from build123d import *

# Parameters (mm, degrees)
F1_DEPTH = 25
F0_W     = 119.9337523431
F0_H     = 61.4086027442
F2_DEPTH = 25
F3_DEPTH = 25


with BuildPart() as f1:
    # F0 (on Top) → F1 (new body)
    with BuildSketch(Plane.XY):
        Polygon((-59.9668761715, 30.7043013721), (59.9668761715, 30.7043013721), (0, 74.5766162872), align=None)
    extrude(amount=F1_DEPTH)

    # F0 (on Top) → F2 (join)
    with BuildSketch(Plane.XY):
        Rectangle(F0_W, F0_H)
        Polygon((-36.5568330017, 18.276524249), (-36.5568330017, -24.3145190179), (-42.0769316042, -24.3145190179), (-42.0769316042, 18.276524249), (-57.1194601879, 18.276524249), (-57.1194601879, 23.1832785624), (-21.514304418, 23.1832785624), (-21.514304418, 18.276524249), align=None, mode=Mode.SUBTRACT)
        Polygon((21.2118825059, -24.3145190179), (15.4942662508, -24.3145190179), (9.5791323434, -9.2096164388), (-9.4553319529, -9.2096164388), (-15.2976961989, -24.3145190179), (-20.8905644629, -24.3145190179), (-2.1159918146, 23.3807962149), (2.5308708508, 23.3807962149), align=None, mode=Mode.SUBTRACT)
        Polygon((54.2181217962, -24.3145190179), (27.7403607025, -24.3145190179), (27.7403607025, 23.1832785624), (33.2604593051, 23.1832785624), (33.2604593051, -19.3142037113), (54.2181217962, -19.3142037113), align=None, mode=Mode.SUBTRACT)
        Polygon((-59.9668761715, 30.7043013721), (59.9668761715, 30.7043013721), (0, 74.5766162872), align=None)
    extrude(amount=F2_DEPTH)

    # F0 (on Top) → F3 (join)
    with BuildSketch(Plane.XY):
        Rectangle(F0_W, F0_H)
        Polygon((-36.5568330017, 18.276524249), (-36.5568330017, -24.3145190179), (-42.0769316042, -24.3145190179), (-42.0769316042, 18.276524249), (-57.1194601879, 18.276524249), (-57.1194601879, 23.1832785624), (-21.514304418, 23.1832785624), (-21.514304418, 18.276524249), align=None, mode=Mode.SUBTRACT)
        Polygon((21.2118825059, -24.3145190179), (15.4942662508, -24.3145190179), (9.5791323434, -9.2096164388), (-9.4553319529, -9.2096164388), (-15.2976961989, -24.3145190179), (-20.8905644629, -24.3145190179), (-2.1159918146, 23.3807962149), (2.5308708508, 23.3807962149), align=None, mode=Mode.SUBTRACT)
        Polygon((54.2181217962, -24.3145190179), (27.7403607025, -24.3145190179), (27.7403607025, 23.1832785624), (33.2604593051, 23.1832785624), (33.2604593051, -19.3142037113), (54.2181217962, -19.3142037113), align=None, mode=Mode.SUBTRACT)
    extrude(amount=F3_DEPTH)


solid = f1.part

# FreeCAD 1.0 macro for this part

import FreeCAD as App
import Part
import Sketcher
from FreeCAD import Vector
Q = App.Units.Quantity


def add_polygon(sketch, points):
    """Adds a closed chain of lines whose ends are joined by coincident constraints."""
    first, n = sketch.GeometryCount, len(points)
    for a, b in zip(points, points[1:] + points[:1]):
        sketch.addGeometry(Part.LineSegment(App.Vector(*a, 0), App.Vector(*b, 0)), False)
    for i in range(n):
        sketch.addConstraint(Sketcher.Constraint("Coincident", first + i, 2, first + (i + 1) % n, 1))

doc = App.newDocument("Part")
body = doc.addObject("PartDesign::Body", "Body")

sketch1 = body.newObject("Sketcher::SketchObject", "Sketch")
sketch1.AttachmentSupport = (doc.getObject("XY_Plane"), [""])
sketch1.MapMode = "FlatFace"
add_polygon(sketch1, [(-59.966876, 30.704301), (59.966876, 30.704301), (0, 74.576616)])
sketch1.addConstraint([
    Sketcher.Constraint("Horizontal", 0),
    Sketcher.Constraint("PointOnObject", 1, 2, -2),
    Sketcher.Constraint("Equal", 1, 2),
    Sketcher.Constraint("DistanceY", -1, 1, 0, 2, Q("30.704301 mm")),
    Sketcher.Constraint("Distance", 1, Q("74.302128 mm")),
    Sketcher.Constraint("DistanceX", 0, 1, 0, 2, Q("119.933752 mm")),
])
pad1 = body.newObject("PartDesign::Pad", "Pad")
pad1.Profile = sketch1
pad1.Length = 25

sketch2 = body.newObject("Sketcher::SketchObject", "Sketch001")
sketch2.AttachmentSupport = (doc.getObject("XY_Plane"), [""])
sketch2.MapMode = "FlatFace"
add_polygon(sketch2, [(-59.966876, 30.704301), (-59.966876, -30.704301), (59.966876, -30.704301), (59.966876, 30.704301), (0, 74.576616)])
add_polygon(sketch2, [(-21.514304, 18.276524), (-36.556833, 18.276524), (-36.556833, -24.314519), (-42.076932, -24.314519), (-42.076932, 18.276524), (-57.11946, 18.276524), (-57.11946, 23.183279), (-21.514304, 23.183279)])
add_polygon(sketch2, [(54.218122, -19.314204), (54.218122, -24.314519), (27.740361, -24.314519), (27.740361, 23.183279), (33.260459, 23.183279), (33.260459, -19.314204)])
add_polygon(sketch2, [(2.530871, 23.380796), (21.211883, -24.314519), (15.494266, -24.314519), (9.579132, -9.209616), (-9.455332, -9.209616), (-15.297696, -24.314519), (-20.890564, -24.314519), (-2.115992, 23.380796)])
sketch2.addConstraint([
    Sketcher.Constraint("Vertical", 0),
    Sketcher.Constraint("Horizontal", 1),
    Sketcher.Constraint("Vertical", 2),
    Sketcher.Constraint("Horizontal", 5),
    Sketcher.Constraint("Vertical", 6),
    Sketcher.Constraint("Horizontal", 7),
    Sketcher.Constraint("Vertical", 8),
    Sketcher.Constraint("Horizontal", 9),
    Sketcher.Constraint("Vertical", 10),
    Sketcher.Constraint("Horizontal", 11),
    Sketcher.Constraint("Vertical", 12),
    Sketcher.Constraint("Vertical", 13),
    Sketcher.Constraint("Horizontal", 14),
    Sketcher.Constraint("Vertical", 15),
    Sketcher.Constraint("Horizontal", 16),
    Sketcher.Constraint("Vertical", 17),
    Sketcher.Constraint("Horizontal", 18),
    Sketcher.Constraint("Horizontal", 20),
    Sketcher.Constraint("Horizontal", 22),
    Sketcher.Constraint("Horizontal", 24),
    Sketcher.Constraint("Horizontal", 26),
    Sketcher.Constraint("Symmetric", 0, 2, 2, 2, -1, 1),
    Sketcher.Constraint("PointOnObject", 3, 2, -2),
    Sketcher.Constraint("Horizontal", 2, 2, 4, 2),
    Sketcher.Constraint("Horizontal", 5, 2, 8, 2),
    Sketcher.Constraint("Horizontal", 7, 2, 13, 2),
    Sketcher.Constraint("Horizontal", 11, 2, 15, 2),
    Sketcher.Constraint("Horizontal", 14, 2, 19, 2),
    Sketcher.Constraint("Horizontal", 20, 2, 23, 2),
    Sketcher.Constraint("Equal", 5, 9),
    Sketcher.Constraint("Equal", 7, 16),
    Sketcher.Constraint("DistanceX", 7, 2, 7, 1, Q("5.520099 mm")),
    Sketcher.Constraint("DistanceX", 5, 2, 5, 1, Q("15.042529 mm")),
    Sketcher.Constraint("DistanceX", 14, 2, 14, 1, Q("26.477761 mm")),
    Sketcher.Constraint("DistanceX", 24, 2, 24, 1, Q("5.592868 mm")),
    Sketcher.Constraint("DistanceY", 0, 2, -1, 1, Q("30.704301 mm")),
    Sketcher.Constraint("DistanceX", 22, 2, 20, 2, Q("24.949598 mm")),
    Sketcher.Constraint("DistanceX", 6, 2, 22, 2, Q("27.101501 mm")),
    Sketcher.Constraint("Distance", 3, Q("74.302128 mm")),
    Sketcher.Constraint("Distance", 19, Q("51.223269 mm")),
    Sketcher.Constraint("Distance", 23, Q("16.19541 mm")),
    Sketcher.Constraint("DistanceX", 1, 1, 1, 2, Q("119.933752 mm")),
    Sketcher.Constraint("DistanceX", 20, 2, 20, 1, Q("5.717616 mm")),
    Sketcher.Constraint("DistanceX", 22, 2, 22, 1, Q("19.034464 mm")),
    Sketcher.Constraint("DistanceX", 26, 1, 26, 2, Q("4.646863 mm")),
    Sketcher.Constraint("DistanceY", 6, 2, 6, 1, Q("42.591043 mm")),
    Sketcher.Constraint("DistanceY", 10, 1, 10, 2, Q("4.906754 mm")),
    Sketcher.Constraint("DistanceY", 13, 2, 13, 1, Q("5.000315 mm")),
    Sketcher.Constraint("DistanceY", 6, 2, -1, 1, Q("24.314519 mm")),
    Sketcher.Constraint("DistanceX", 7, 2, -1, 1, Q("42.076932 mm")),
    Sketcher.Constraint("DistanceX", -1, 1, 13, 2, Q("54.218122 mm")),
    Sketcher.Constraint("DistanceX", 25, 2, -1, 1, Q("2.115992 mm")),
    Sketcher.Constraint("DistanceY", 22, 2, 12, 2, Q("27.486141 mm")),
])
pad2 = body.newObject("PartDesign::Pad", "Pad001")
pad2.Profile = sketch2
pad2.Length = 25

sketch3 = body.newObject("Sketcher::SketchObject", "Sketch002")
sketch3.AttachmentSupport = (doc.getObject("XY_Plane"), [""])
sketch3.MapMode = "FlatFace"
add_polygon(sketch3, [(-59.966876, 30.704301), (-59.966876, -30.704301), (59.966876, -30.704301), (59.966876, 30.704301)])
add_polygon(sketch3, [(-21.514304, 18.276524), (-36.556833, 18.276524), (-36.556833, -24.314519), (-42.076932, -24.314519), (-42.076932, 18.276524), (-57.11946, 18.276524), (-57.11946, 23.183279), (-21.514304, 23.183279)])
add_polygon(sketch3, [(54.218122, -19.314204), (54.218122, -24.314519), (27.740361, -24.314519), (27.740361, 23.183279), (33.260459, 23.183279), (33.260459, -19.314204)])
add_polygon(sketch3, [(2.530871, 23.380796), (21.211883, -24.314519), (15.494266, -24.314519), (9.579132, -9.209616), (-9.455332, -9.209616), (-15.297696, -24.314519), (-20.890564, -24.314519), (-2.115992, 23.380796)])
sketch3.addConstraint([
    Sketcher.Constraint("Vertical", 0),
    Sketcher.Constraint("Horizontal", 1),
    Sketcher.Constraint("Vertical", 2),
    Sketcher.Constraint("Horizontal", 3),
    Sketcher.Constraint("Horizontal", 4),
    Sketcher.Constraint("Vertical", 5),
    Sketcher.Constraint("Horizontal", 6),
    Sketcher.Constraint("Vertical", 7),
    Sketcher.Constraint("Horizontal", 8),
    Sketcher.Constraint("Vertical", 9),
    Sketcher.Constraint("Horizontal", 10),
    Sketcher.Constraint("Vertical", 11),
    Sketcher.Constraint("Vertical", 12),
    Sketcher.Constraint("Horizontal", 13),
    Sketcher.Constraint("Vertical", 14),
    Sketcher.Constraint("Horizontal", 15),
    Sketcher.Constraint("Vertical", 16),
    Sketcher.Constraint("Horizontal", 17),
    Sketcher.Constraint("Horizontal", 19),
    Sketcher.Constraint("Horizontal", 21),
    Sketcher.Constraint("Horizontal", 23),
    Sketcher.Constraint("Horizontal", 25),
    Sketcher.Constraint("Symmetric", 0, 2, 2, 2, -1, 1),
    Sketcher.Constraint("Horizontal", 4, 2, 7, 2),
    Sketcher.Constraint("Horizontal", 6, 2, 12, 2),
    Sketcher.Constraint("Horizontal", 10, 2, 14, 2),
    Sketcher.Constraint("Horizontal", 13, 2, 18, 2),
    Sketcher.Constraint("Horizontal", 19, 2, 22, 2),
    Sketcher.Constraint("Equal", 4, 8),
    Sketcher.Constraint("Equal", 6, 15),
    Sketcher.Constraint("DistanceX", 6, 2, 6, 1, Q("5.520099 mm")),
    Sketcher.Constraint("DistanceX", 4, 2, 4, 1, Q("15.042529 mm")),
    Sketcher.Constraint("DistanceX", 13, 2, 13, 1, Q("26.477761 mm")),
    Sketcher.Constraint("DistanceX", 23, 2, 23, 1, Q("5.592868 mm")),
    Sketcher.Constraint("DistanceY", 0, 2, -1, 1, Q("30.704301 mm")),
    Sketcher.Constraint("DistanceX", 21, 2, 19, 2, Q("24.949598 mm")),
    Sketcher.Constraint("DistanceX", 5, 2, 21, 2, Q("27.101501 mm")),
    Sketcher.Constraint("Distance", 18, Q("51.223269 mm")),
    Sketcher.Constraint("Distance", 22, Q("16.19541 mm")),
    Sketcher.Constraint("DistanceX", 1, 1, 1, 2, Q("119.933752 mm")),
    Sketcher.Constraint("DistanceX", 19, 2, 19, 1, Q("5.717616 mm")),
    Sketcher.Constraint("DistanceX", 21, 2, 21, 1, Q("19.034464 mm")),
    Sketcher.Constraint("DistanceX", 25, 1, 25, 2, Q("4.646863 mm")),
    Sketcher.Constraint("DistanceY", 5, 2, 5, 1, Q("42.591043 mm")),
    Sketcher.Constraint("DistanceY", 9, 1, 9, 2, Q("4.906754 mm")),
    Sketcher.Constraint("DistanceY", 12, 2, 12, 1, Q("5.000315 mm")),
    Sketcher.Constraint("DistanceY", 5, 2, -1, 1, Q("24.314519 mm")),
    Sketcher.Constraint("DistanceX", 6, 2, -1, 1, Q("42.076932 mm")),
    Sketcher.Constraint("DistanceX", -1, 1, 12, 2, Q("54.218122 mm")),
    Sketcher.Constraint("DistanceX", 24, 2, -1, 1, Q("2.115992 mm")),
    Sketcher.Constraint("DistanceY", 21, 2, 11, 2, Q("27.486141 mm")),
])
pad3 = body.newObject("PartDesign::Pad", "Pad002")
pad3.Profile = sketch3
pad3.Length = 25

doc.recompute()
